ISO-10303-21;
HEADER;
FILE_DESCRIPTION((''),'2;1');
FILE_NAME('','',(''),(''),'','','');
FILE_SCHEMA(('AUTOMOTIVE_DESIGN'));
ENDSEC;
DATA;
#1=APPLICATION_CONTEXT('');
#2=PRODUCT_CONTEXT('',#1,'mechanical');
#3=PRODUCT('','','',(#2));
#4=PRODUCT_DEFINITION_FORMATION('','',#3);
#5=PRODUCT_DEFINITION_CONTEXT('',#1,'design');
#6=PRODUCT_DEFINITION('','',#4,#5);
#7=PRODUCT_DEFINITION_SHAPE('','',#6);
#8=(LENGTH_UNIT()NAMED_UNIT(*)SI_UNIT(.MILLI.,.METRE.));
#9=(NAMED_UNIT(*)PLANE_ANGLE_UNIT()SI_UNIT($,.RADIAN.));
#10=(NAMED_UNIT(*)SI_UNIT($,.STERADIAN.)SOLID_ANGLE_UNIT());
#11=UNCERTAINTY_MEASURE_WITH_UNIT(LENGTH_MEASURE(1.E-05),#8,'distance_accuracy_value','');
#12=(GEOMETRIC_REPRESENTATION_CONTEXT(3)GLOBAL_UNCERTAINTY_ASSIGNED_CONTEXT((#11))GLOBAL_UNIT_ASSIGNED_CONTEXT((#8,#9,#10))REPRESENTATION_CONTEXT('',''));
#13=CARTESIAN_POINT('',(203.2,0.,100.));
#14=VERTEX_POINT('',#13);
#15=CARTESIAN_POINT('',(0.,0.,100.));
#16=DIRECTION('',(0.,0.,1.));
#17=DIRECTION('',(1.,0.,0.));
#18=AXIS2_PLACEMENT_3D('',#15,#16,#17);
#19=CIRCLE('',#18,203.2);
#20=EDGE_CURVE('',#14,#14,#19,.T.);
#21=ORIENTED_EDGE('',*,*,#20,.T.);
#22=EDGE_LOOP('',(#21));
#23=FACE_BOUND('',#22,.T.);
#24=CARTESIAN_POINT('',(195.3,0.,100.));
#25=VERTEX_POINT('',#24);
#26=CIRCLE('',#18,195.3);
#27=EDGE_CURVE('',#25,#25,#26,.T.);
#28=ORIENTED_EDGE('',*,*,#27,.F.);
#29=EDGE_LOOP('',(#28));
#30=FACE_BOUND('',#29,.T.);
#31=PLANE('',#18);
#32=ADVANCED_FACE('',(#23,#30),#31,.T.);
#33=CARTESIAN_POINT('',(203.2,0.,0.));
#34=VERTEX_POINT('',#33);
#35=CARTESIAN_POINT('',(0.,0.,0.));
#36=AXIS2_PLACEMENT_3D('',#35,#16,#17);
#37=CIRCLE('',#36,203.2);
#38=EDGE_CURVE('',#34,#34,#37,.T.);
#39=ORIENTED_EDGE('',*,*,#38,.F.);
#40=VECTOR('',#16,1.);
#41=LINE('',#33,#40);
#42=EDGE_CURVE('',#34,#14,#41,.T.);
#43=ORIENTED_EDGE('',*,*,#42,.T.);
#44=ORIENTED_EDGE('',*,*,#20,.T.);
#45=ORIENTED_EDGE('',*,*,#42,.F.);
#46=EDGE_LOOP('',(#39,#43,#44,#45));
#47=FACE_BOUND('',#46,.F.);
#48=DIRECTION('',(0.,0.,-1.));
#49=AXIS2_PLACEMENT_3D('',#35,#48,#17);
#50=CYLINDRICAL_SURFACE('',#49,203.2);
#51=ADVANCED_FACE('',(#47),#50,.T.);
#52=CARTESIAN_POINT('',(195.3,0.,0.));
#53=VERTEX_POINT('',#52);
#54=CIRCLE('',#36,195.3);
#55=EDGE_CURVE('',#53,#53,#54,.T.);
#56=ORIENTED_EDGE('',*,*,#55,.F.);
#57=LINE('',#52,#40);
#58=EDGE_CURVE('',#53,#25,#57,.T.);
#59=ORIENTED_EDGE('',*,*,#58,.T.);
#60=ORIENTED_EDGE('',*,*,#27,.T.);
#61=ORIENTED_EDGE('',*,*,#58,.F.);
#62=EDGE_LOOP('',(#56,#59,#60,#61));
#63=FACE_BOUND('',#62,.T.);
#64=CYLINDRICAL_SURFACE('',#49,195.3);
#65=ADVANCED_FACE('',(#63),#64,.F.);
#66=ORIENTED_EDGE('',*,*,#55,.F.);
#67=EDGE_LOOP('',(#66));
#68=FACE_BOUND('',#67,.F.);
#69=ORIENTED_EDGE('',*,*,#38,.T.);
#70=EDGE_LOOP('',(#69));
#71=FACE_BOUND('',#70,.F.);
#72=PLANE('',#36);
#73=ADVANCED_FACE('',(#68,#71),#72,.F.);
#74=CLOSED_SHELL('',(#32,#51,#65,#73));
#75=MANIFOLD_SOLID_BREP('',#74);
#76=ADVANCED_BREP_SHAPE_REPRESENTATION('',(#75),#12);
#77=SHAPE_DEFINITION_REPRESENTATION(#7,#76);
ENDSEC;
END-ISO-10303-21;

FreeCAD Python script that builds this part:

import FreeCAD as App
import Part
import Sketcher

V = App.Vector
Q = App.Units.Quantity

doc = App.newDocument("Part")
body = doc.addObject("PartDesign::Body", "Body")

# Sketch on XY plane
sketch1 = doc.addObject("Sketcher::SketchObject", "Sketch")
body.addObject(sketch1)
sketch1.AttachmentSupport = (doc.XY_Plane, [""])
sketch1.MapMode = "FlatFace"
sketch1.addGeometry([
    Part.Circle(V(0, 0, 0), V(0, 0, 1), 203),
    Part.Circle(V(0, 0, 0), V(0, 0, 1), 195),
], False)
sketch1.addConstraint([
    Sketcher.Constraint("Coincident", 0, 3, -1, 1),
    Sketcher.Constraint("Coincident", 1, 3, -1, 1),
    Sketcher.Constraint("Diameter", 0, Q("16 in")),
    Sketcher.Constraint("Diameter", 1, 390.6),
])
pad1 = doc.addObject("PartDesign::Pad", "Pad")
body.addObject(pad1)
pad1.Profile = sketch1
pad1.Length = Q("3.9370079 in")

doc.recompute()
